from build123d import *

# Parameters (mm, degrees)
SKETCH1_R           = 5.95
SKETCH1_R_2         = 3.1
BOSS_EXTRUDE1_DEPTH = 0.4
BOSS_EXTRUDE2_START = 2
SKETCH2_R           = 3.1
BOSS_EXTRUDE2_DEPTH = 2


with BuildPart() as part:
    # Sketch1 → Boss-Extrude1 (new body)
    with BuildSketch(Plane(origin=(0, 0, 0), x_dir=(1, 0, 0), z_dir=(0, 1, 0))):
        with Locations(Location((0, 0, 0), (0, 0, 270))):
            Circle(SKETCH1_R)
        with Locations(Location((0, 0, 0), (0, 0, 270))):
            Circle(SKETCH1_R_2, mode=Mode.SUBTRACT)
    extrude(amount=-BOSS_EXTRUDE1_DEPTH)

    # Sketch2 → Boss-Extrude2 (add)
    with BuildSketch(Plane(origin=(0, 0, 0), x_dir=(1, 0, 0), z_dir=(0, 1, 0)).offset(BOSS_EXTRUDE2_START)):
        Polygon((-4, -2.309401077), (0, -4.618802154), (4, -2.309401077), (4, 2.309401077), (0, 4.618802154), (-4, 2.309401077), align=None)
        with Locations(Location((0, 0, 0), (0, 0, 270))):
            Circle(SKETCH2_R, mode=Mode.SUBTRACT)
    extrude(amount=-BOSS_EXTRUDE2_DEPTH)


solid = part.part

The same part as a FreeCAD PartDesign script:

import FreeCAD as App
import Part
import Sketcher
from FreeCAD import Vector
Q = App.Units.Quantity

doc = App.newDocument("Part")
body = doc.addObject("PartDesign::Body", "Body")

# Sketch on XZ plane
sketch1 = body.newObject("Sketcher::SketchObject", "Sketch")
sketch1.AttachmentSupport = (doc.getObject("XZ_Plane"), [""])
sketch1.MapMode = "FlatFace"
sketch1.addGeometry([
    Part.Circle(Vector(0, 0, 0), Vector(0, 0, 1), 5.95),
    Part.Circle(Vector(0, 0, 0), Vector(0, 0, 1), 3.1),
], False)
sketch1.addConstraint([
    Sketcher.Constraint("Coincident", 0, 3, -1, 1),
    Sketcher.Constraint("Coincident", 1, 3, -1, 1),
    Sketcher.Constraint("Diameter", 0, Q("11.9 mm")),
    Sketcher.Constraint("Diameter", 1, Q("6.2 mm")),
])
pad1 = body.newObject("PartDesign::Pad", "Pad")
pad1.Profile = sketch1
pad1.Length = 0.4

# Sketch on XZ plane
sketch2 = body.newObject("Sketcher::SketchObject", "Sketch001")
sketch2.AttachmentSupport = (doc.getObject("XZ_Plane"), [""])
sketch2.MapMode = "FlatFace"
sketch2.AttachmentOffset = App.Placement(Vector(0, 0, -2), App.Rotation())
sketch2.addGeometry([
    Part.LineSegment(Vector(-4, 2.309401, 0), Vector(0, 4.618802, 0)),  # 0
    Part.LineSegment(Vector(0, 4.618802, 0), Vector(4, 2.309401, 0)),  # 1
    Part.LineSegment(Vector(4, 2.309401, 0), Vector(4, -2.309401, 0)),  # 2
    Part.LineSegment(Vector(4, -2.309401, 0), Vector(0, -4.618802, 0)),  # 3
    Part.LineSegment(Vector(0, -4.618802, 0), Vector(-4, -2.309401, 0)),  # 4
    Part.LineSegment(Vector(-4, -2.309401, 0), Vector(-4, 2.309401, 0)),  # 5
    Part.Circle(Vector(0, 0, 0), Vector(0, 0, 1), 3.1),  # 6
], False)
sketch2.addConstraint([
    Sketcher.Constraint("Coincident", 0, 2, 1, 1),
    Sketcher.Constraint("Coincident", 1, 2, 2, 1),
    Sketcher.Constraint("Coincident", 2, 2, 3, 1),
    Sketcher.Constraint("Coincident", 3, 2, 4, 1),
    Sketcher.Constraint("Coincident", 4, 2, 5, 1),
    Sketcher.Constraint("Coincident", 5, 2, 0, 1),
    Sketcher.Constraint("Vertical", 2),
    Sketcher.Constraint("Vertical", 5),
    Sketcher.Constraint("Coincident", 6, 3, -1, 1),
    Sketcher.Constraint("Symmetric", 0, 2, 3, 2, -1, 1),
    Sketcher.Constraint("Symmetric", 1, 2, 4, 2, -1, 1),
    Sketcher.Constraint("PointOnObject", 0, 2, -2),
    Sketcher.Constraint("Parallel", 0, 3),
    Sketcher.Constraint("Horizontal", 2, 2, 4, 2),
    Sketcher.Constraint("Diameter", 6, Q("6.2 mm")),
    Sketcher.Constraint("Angle", 0, Q("30 deg")),
    Sketcher.Constraint("DistanceX", -1, 1, 1, 2, Q("4 mm")),
    Sketcher.Constraint("DistanceY", -1, 1, 1, 2, Q("2.309401 mm")),
])
pad2 = body.newObject("PartDesign::Pad", "Pad001")
pad2.Profile = sketch2
pad2.Length = 2

doc.recompute()
